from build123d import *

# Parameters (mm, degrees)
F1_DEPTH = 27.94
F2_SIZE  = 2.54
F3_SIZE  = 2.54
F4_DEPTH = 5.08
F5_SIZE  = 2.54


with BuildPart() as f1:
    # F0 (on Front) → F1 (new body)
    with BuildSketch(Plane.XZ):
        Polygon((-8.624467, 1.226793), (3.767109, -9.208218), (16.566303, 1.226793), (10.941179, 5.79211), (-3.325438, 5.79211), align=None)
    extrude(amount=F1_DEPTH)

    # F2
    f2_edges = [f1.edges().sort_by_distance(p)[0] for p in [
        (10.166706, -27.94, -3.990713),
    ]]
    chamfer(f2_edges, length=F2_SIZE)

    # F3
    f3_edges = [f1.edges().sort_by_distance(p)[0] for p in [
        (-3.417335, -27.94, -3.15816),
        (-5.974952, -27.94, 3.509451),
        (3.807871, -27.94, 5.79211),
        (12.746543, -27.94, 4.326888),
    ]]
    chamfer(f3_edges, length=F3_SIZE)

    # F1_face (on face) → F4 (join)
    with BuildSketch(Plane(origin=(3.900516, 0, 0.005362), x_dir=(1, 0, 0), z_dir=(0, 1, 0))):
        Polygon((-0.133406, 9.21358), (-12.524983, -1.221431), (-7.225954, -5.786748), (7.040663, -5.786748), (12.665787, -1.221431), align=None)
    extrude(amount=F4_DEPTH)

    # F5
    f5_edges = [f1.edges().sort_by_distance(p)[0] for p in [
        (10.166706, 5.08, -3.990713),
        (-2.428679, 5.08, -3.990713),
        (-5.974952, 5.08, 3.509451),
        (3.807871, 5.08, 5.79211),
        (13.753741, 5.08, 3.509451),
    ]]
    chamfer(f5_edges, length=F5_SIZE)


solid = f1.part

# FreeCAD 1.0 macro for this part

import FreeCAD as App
import Part
import Sketcher
Q = App.Units.Quantity


def edges_at(feature, points):
    """Names of the edges that pass closest to the given points."""
    edges = feature.Shape.Edges
    near = lambda p: min(range(len(edges)), key=lambda i: edges[i].distToShape(Part.Vertex(*p))[0])
    return sorted({f"Edge{near(p) + 1}" for p in points})


def add_polygon(sketch, points):
    """Adds a closed chain of lines whose ends are joined by coincident constraints."""
    first, n = sketch.GeometryCount, len(points)
    for a, b in zip(points, points[1:] + points[:1]):
        sketch.addGeometry(Part.LineSegment(App.Vector(*a, 0), App.Vector(*b, 0)), False)
    for i in range(n):
        sketch.addConstraint(Sketcher.Constraint("Coincident", first + i, 2, first + (i + 1) % n, 1))

doc = App.newDocument("Part")
body = doc.addObject("PartDesign::Body", "Body")

sketch1 = body.newObject("Sketcher::SketchObject", "Sketch")
sketch1.AttachmentSupport = (doc.getObject("XZ_Plane"), [""])
sketch1.MapMode = "FlatFace"
add_polygon(sketch1, [(-8.624467, 1.226793), (3.767109, -9.208218), (16.566303, 1.226793), (10.941179, 5.79211), (-3.325438, 5.79211)])
sketch1.addConstraint(Sketcher.Constraint("Horizontal", 3))
sketch1.addConstraint(Sketcher.Constraint("Horizontal", 1, 2, 4, 2))
sketch1.addConstraint(Sketcher.Constraint("Distance", 0, 16.200019))
sketch1.addConstraint(Sketcher.Constraint("DistanceX", 3, 2, 3, 1, 14.266617))
sketch1.addConstraint(Sketcher.Constraint("DistanceX", -1, 1, 0, 2, 3.767109))
sketch1.addConstraint(Sketcher.Constraint("DistanceX", -1, 1, 2, 2, 10.941179))
sketch1.addConstraint(Sketcher.Constraint("DistanceY", -1, 1, 2, 2, 5.79211))
sketch1.addConstraint(Sketcher.Constraint("DistanceY", 0, 2, 1, 2, 10.435011))
sketch1.addConstraint(Sketcher.Constraint("DistanceX", 3, 2, 1, 2, 19.891741))
sketch1.addConstraint(Sketcher.Constraint("Distance", 2, 7.244594))
pad1 = body.newObject("PartDesign::Pad", "Pad")
pad1.Profile = sketch1
pad1.Length = Q("1.1 in")
doc.recompute()

chamfer = body.newObject("PartDesign::Chamfer", "Chamfer")
chamfer.Base = (pad1, edges_at(pad1, [(10.167, -27.94, -3.991)]))
chamfer.Size = Q("0.1 in")
doc.recompute()

chamfer2 = body.newObject("PartDesign::Chamfer", "Chamfer001")
chamfer2.Base = (chamfer, edges_at(chamfer, [
    (-3.417, -27.94, -3.158),
    (-5.975, -27.94, 3.509),
    (3.808, -27.94, 5.792),
    (12.747, -27.94, 4.327),
]))
chamfer2.Size = Q("0.1 in")

sketch2 = body.newObject("Sketcher::SketchObject", "Sketch001")
sketch2.AttachmentSupport = (doc.getObject("XZ_Plane"), [""])
sketch2.MapMode = "FlatFace"
add_polygon(sketch2, [(3.76711, -9.208218), (-8.624467, 1.226793), (-3.325438, 5.79211), (10.941179, 5.79211), (16.566303, 1.226793)])
sketch2.addConstraint(Sketcher.Constraint("Horizontal", 2))
sketch2.addConstraint(Sketcher.Constraint("Horizontal", 0, 2, 3, 2))
sketch2.addConstraint(Sketcher.Constraint("Distance", 0, 16.20002))
sketch2.addConstraint(Sketcher.Constraint("DistanceX", 2, 1, 2, 2, 14.266617))
sketch2.addConstraint(Sketcher.Constraint("DistanceX", 1, 2, -1, 1, 3.325438))
sketch2.addConstraint(Sketcher.Constraint("DistanceY", -1, 1, 1, 2, 5.79211))
sketch2.addConstraint(Sketcher.Constraint("DistanceX", -1, 1, 4, 2, 3.76711))
sketch2.addConstraint(Sketcher.Constraint("DistanceX", 0, 2, 1, 2, 5.299029))
sketch2.addConstraint(Sketcher.Constraint("DistanceX", 1, 2, 3, 2, 19.891741))
sketch2.addConstraint(Sketcher.Constraint("Distance", 1, 6.994414))
pad2 = body.newObject("PartDesign::Pad", "Pad001")
pad2.Profile = sketch2
pad2.Length = Q("0.2 in")
pad2.Reversed = True
doc.recompute()

chamfer3 = body.newObject("PartDesign::Chamfer", "Chamfer002")
chamfer3.Base = (pad2, edges_at(pad2, [
    (10.167, 5.08, -3.991),
    (-2.429, 5.08, -3.991),
    (-5.975, 5.08, 3.509),
    (3.808, 5.08, 5.792),
    (13.754, 5.08, 3.509),
]))
chamfer3.Size = Q("0.1 in")

doc.recompute()
